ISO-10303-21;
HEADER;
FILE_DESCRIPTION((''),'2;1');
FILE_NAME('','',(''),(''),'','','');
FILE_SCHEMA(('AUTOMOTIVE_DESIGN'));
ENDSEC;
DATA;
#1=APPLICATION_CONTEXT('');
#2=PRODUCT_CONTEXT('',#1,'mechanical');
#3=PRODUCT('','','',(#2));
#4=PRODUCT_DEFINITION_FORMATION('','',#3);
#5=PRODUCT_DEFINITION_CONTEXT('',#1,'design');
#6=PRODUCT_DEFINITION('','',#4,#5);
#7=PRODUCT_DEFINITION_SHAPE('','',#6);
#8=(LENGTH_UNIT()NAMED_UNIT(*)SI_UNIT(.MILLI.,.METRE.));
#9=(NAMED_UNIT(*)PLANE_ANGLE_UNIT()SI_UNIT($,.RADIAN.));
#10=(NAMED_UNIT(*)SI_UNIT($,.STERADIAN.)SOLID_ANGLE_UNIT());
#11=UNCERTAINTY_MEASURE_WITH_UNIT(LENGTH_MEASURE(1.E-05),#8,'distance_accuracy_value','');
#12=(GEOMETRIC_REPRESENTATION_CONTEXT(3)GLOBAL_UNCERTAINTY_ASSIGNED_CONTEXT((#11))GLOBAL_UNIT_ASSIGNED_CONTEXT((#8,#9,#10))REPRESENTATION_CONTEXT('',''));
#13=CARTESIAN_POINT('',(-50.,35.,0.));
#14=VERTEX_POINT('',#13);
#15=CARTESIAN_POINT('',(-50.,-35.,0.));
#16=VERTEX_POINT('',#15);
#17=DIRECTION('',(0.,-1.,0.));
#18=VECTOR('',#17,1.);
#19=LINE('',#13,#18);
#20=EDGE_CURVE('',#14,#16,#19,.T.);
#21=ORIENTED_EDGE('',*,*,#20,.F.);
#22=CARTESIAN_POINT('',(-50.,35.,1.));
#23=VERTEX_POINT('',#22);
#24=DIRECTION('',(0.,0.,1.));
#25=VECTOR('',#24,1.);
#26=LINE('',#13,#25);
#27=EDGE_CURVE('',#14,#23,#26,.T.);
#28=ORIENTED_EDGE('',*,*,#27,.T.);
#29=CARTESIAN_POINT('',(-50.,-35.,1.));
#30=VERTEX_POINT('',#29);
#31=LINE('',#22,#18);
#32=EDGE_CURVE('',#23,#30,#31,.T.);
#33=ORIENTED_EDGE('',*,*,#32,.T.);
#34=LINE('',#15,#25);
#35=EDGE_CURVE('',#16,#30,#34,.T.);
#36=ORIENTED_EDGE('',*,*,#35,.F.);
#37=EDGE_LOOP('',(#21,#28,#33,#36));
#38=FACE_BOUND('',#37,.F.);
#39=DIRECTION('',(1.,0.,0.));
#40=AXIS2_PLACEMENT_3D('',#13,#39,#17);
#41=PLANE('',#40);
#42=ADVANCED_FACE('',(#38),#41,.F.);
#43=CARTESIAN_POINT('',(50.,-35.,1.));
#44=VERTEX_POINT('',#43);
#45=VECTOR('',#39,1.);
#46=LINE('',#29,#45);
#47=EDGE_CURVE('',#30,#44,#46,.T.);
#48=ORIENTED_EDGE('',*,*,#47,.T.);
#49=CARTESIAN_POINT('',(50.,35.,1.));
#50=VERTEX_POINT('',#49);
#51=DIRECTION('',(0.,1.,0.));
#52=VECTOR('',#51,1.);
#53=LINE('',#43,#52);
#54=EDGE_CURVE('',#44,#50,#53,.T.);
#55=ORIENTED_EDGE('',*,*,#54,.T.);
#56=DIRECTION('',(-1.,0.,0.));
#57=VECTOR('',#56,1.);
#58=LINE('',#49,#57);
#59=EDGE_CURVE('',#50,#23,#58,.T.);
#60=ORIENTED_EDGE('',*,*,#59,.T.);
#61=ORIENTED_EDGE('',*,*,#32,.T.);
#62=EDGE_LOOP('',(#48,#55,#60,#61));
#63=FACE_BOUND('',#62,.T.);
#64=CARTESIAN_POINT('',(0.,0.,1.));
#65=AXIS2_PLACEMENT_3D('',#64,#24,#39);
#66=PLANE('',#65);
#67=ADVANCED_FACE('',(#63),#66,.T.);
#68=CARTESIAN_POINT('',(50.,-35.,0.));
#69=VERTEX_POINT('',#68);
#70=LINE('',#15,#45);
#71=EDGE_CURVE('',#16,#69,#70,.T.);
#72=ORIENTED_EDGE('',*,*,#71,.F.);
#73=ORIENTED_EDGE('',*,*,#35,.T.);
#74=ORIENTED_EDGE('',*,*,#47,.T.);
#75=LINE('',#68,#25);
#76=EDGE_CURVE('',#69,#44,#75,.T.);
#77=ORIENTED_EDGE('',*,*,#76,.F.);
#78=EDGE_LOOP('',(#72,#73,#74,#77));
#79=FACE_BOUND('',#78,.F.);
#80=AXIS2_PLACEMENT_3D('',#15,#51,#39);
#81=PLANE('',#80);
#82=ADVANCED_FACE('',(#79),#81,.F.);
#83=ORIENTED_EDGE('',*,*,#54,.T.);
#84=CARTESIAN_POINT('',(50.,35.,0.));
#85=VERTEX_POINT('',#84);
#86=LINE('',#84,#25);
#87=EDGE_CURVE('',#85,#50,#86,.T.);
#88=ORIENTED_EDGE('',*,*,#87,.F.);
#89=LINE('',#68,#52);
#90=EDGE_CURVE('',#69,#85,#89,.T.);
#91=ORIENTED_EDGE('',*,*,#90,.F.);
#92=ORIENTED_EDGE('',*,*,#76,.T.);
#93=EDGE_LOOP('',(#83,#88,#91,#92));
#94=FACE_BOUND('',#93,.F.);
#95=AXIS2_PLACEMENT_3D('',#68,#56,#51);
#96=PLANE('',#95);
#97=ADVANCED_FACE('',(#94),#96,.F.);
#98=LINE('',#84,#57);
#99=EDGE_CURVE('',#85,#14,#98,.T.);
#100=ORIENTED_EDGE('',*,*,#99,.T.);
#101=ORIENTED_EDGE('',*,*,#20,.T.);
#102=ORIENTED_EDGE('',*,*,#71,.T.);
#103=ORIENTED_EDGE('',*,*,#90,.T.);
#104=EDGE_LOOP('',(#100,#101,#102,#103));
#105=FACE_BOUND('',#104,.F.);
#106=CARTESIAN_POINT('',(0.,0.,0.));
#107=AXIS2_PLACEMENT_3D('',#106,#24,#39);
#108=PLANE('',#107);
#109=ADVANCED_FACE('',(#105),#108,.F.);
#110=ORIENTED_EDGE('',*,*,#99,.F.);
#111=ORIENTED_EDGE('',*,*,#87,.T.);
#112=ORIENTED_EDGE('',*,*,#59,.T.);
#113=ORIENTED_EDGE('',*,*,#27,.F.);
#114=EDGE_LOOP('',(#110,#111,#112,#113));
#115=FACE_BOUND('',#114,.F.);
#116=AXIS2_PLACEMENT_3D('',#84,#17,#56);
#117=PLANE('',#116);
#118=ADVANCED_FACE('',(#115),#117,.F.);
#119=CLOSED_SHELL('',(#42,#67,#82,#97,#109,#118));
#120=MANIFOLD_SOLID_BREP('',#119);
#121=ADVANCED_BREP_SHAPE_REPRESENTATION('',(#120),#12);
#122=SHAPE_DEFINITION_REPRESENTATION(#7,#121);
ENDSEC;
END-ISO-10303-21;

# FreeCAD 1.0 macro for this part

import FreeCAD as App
import Part
import Sketcher

V = App.Vector
Q = App.Units.Quantity

doc = App.newDocument("Part")
body = doc.addObject("PartDesign::Body", "Body")

sketch1 = body.newObject("Sketcher::SketchObject", "Sketch")
sketch1.AttachmentSupport = (doc.getObject("XY_Plane"), [""])
sketch1.MapMode = "FlatFace"
sketch1.addGeometry([
    Part.LineSegment(V(-50, 35, 0), V(-50, -35, 0)),
    Part.LineSegment(V(-50, -35, 0), V(50, -35, 0)),
    Part.LineSegment(V(50, -35, 0), V(50, 35, 0)),
    Part.LineSegment(V(50, 35, 0), V(-50, 35, 0)),
], False)
sketch1.addConstraint([
    Sketcher.Constraint("Coincident", 0, 2, 1, 1),
    Sketcher.Constraint("Coincident", 1, 2, 2, 1),
    Sketcher.Constraint("Coincident", 2, 2, 3, 1),
    Sketcher.Constraint("Coincident", 3, 2, 0, 1),
    Sketcher.Constraint("Vertical", 0),
    Sketcher.Constraint("Horizontal", 1),
    Sketcher.Constraint("Vertical", 2),
    Sketcher.Constraint("Horizontal", 3),
    Sketcher.Constraint("Symmetric", 0, 2, 2, 2, -1, 1),
    Sketcher.Constraint("DistanceX", 1, 1, 1, 2, Q("100 mm")),
    Sketcher.Constraint("DistanceY", 0, 2, 0, 1, Q("70 mm")),
])
pad1 = body.newObject("PartDesign::Pad", "Pad")
pad1.Profile = sketch1
pad1.Length = 1

doc.recompute()
